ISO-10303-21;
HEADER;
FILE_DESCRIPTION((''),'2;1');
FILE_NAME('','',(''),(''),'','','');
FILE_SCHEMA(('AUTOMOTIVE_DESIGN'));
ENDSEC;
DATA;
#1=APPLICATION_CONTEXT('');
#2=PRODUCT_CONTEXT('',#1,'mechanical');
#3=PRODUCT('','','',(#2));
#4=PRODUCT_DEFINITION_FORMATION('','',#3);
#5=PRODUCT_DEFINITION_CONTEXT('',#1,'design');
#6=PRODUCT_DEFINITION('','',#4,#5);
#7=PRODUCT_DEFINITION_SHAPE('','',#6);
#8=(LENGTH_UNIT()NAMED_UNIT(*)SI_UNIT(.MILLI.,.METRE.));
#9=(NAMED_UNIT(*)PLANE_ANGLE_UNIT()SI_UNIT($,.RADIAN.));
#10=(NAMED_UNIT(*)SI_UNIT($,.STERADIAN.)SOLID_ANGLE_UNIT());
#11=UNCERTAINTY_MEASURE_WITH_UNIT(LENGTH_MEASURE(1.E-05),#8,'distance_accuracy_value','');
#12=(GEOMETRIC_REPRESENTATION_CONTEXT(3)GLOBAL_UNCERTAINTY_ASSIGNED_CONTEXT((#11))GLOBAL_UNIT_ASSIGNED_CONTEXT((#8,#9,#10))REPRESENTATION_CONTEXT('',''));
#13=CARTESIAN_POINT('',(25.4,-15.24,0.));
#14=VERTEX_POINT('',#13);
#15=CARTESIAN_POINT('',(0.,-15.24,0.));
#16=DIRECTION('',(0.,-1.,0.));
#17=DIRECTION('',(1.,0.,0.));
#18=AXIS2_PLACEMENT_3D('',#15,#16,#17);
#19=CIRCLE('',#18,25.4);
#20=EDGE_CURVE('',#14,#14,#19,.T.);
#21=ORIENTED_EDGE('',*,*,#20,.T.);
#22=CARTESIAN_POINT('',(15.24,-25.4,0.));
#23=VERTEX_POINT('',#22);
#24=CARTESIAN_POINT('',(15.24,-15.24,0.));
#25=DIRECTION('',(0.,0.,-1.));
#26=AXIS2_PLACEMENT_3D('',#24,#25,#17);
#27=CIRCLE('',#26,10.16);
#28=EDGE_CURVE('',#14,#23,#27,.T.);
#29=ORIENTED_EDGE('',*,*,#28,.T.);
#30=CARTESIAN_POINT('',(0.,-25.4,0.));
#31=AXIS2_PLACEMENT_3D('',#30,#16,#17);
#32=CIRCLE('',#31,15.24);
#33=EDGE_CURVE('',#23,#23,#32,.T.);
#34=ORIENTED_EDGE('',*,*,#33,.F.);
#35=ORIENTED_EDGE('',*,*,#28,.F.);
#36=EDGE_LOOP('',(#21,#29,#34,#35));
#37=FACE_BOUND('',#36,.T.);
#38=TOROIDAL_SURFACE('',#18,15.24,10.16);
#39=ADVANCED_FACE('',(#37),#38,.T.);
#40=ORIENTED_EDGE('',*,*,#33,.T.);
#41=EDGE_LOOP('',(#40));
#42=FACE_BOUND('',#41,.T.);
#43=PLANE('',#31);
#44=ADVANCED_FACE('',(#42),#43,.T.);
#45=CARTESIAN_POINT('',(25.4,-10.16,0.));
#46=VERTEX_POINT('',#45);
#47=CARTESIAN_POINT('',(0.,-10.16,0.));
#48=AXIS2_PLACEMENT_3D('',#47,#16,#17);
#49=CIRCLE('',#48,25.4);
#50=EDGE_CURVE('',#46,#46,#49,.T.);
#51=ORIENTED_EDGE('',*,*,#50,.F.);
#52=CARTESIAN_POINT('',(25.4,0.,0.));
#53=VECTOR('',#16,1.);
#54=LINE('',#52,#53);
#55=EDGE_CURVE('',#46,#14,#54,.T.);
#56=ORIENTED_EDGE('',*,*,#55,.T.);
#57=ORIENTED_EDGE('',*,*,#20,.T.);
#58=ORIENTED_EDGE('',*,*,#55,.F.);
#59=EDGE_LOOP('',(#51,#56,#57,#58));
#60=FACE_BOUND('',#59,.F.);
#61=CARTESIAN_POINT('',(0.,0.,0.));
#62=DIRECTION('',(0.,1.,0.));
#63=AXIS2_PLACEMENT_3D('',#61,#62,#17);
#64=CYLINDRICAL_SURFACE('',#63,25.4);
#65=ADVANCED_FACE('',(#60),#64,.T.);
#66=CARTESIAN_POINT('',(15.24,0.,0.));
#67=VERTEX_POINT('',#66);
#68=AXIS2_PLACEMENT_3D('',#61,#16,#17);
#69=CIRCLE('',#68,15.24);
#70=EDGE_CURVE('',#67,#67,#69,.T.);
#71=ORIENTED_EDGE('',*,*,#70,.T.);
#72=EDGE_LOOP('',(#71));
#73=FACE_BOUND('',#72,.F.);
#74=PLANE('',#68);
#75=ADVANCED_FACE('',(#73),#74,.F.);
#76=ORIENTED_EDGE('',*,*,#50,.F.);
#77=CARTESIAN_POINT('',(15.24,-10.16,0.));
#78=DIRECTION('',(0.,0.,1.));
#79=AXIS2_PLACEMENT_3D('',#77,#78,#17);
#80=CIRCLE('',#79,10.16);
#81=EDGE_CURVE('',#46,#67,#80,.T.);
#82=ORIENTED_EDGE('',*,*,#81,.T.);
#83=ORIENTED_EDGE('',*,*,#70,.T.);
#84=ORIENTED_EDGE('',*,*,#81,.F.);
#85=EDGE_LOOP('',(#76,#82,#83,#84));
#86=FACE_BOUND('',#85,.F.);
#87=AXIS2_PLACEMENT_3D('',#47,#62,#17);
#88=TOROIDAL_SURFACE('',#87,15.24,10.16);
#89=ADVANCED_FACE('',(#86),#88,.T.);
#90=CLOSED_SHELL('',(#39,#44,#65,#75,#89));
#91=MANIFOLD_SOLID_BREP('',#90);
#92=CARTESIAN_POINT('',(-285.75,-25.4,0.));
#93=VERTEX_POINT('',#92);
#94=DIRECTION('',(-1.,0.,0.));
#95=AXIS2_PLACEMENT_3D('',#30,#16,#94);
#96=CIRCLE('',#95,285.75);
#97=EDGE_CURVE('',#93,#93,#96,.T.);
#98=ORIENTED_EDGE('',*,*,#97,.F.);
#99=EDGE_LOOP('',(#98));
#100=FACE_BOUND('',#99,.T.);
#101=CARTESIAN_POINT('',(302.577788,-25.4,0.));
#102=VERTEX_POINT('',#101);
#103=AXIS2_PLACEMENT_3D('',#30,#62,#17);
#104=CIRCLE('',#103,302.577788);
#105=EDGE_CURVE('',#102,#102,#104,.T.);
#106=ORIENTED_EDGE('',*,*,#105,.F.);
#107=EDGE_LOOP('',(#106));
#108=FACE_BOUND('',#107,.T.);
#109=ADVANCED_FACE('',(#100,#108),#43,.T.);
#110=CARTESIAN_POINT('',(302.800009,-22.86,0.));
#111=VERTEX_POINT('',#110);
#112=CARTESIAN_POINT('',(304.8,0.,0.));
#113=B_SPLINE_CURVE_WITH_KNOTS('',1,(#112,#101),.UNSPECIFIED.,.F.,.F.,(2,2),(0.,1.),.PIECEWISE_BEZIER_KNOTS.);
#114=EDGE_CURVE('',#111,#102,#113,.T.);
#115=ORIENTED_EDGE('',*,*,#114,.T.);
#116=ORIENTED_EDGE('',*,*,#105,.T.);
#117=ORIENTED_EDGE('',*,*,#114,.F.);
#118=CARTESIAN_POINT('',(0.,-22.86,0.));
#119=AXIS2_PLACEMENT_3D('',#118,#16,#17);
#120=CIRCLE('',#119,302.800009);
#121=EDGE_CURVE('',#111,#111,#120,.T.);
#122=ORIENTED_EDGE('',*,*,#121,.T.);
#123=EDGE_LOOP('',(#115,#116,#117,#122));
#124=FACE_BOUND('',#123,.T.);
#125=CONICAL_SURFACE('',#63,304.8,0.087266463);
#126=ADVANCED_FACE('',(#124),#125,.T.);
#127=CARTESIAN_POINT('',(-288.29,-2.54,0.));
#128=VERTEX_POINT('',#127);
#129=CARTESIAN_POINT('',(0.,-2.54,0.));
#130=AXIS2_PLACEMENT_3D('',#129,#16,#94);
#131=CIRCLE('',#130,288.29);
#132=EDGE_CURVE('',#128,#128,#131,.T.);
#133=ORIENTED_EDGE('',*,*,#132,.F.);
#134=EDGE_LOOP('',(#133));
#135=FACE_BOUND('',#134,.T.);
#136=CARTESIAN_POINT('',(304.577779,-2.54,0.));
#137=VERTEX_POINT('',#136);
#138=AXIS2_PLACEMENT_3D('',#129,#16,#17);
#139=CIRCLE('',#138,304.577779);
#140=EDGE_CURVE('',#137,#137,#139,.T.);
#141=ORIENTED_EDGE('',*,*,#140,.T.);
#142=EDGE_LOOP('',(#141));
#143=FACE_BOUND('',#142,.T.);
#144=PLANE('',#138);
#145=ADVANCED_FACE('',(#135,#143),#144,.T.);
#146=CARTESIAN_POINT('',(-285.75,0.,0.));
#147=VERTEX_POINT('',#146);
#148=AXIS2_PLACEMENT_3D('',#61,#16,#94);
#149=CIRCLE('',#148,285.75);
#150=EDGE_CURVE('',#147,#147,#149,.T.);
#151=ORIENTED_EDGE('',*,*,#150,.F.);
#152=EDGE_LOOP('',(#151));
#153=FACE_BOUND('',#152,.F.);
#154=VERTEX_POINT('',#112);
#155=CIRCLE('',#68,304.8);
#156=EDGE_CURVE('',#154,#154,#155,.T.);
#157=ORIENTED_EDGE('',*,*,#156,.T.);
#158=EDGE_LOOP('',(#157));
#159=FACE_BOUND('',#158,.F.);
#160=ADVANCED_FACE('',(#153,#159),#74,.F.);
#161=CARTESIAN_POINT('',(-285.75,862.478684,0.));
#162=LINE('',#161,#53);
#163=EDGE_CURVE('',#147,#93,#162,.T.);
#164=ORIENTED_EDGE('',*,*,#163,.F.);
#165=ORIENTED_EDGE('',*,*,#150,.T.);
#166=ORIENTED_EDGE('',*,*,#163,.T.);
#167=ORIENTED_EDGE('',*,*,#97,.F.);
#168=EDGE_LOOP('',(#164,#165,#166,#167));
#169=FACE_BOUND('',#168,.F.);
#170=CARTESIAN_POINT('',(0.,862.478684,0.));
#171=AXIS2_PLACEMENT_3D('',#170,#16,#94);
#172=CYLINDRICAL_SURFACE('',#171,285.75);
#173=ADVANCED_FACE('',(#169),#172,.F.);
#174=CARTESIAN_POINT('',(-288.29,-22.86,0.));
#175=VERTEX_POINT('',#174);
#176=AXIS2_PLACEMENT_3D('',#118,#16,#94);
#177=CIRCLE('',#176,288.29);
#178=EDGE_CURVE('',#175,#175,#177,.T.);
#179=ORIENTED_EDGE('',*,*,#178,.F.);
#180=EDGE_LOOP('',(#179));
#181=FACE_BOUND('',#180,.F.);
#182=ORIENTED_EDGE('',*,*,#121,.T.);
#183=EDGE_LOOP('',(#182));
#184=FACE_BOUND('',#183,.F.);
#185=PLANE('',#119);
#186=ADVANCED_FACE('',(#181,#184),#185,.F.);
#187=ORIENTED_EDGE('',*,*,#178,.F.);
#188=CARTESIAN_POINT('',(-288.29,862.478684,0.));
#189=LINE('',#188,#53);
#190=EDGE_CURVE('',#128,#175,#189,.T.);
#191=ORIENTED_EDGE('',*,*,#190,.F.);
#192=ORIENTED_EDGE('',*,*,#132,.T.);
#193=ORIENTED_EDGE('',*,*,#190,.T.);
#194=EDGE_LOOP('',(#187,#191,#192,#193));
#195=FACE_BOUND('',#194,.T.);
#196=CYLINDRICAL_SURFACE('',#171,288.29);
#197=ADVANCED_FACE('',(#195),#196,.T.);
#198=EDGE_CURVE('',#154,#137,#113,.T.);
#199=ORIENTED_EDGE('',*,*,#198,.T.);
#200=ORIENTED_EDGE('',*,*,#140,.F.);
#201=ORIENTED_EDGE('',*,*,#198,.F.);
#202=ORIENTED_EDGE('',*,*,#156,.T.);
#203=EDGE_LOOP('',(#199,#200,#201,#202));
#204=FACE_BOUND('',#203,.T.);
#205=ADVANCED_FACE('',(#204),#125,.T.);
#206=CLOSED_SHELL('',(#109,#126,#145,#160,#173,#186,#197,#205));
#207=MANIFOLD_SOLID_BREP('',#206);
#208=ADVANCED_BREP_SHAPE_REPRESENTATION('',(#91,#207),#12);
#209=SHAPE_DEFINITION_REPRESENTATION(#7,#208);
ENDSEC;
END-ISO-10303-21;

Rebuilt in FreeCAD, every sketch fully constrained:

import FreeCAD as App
import Part
import Sketcher
from FreeCAD import Vector
Q = App.Units.Quantity


def edges_at(feature, points):
    """Names of the edges that pass closest to the given points."""
    edges = feature.Shape.Edges
    near = lambda p: min(range(len(edges)), key=lambda i: edges[i].distToShape(Part.Vertex(*p))[0])
    return sorted({f"Edge{near(p) + 1}" for p in points})


def faces_at(feature, points):
    """Names of the faces that lie closest to the given points."""
    faces = feature.Shape.Faces
    near = lambda p: min(range(len(faces)), key=lambda i: faces[i].distToShape(Part.Vertex(*p))[0])
    return sorted({f"Face{near(p) + 1}" for p in points})

doc = App.newDocument("Part")
body = doc.addObject("PartDesign::Body", "Body")

# Sketch on XZ plane
sketch1 = body.newObject("Sketcher::SketchObject", "Sketch")
sketch1.AttachmentSupport = (doc.getObject("XZ_Plane"), [""])
sketch1.MapMode = "FlatFace"
sketch1.addGeometry(Part.Circle(Vector(0, 0, 0), Vector(0, 0, 1), 304.8), False)
sketch1.addConstraint([
    Sketcher.Constraint("Coincident", 0, 3, -1, 1),
    Sketcher.Constraint("Diameter", 0, Q("24 in")),
])
pad1 = body.newObject("PartDesign::Pad", "Pad")
pad1.Profile = sketch1
pad1.Length = Q("1 in")
pad1.TaperAngle = -5

# Sketch on XZ plane
sketch2 = body.newObject("Sketcher::SketchObject", "Sketch001")
sketch2.AttachmentSupport = (doc.getObject("XZ_Plane"), [""])
sketch2.MapMode = "FlatFace"
sketch2.addGeometry(Part.Circle(Vector(0, 0, 0), Vector(0, 0, 1), 285.75), False)
sketch2.addConstraint([
    Sketcher.Constraint("Coincident", 0, 3, -1, 1),
    Sketcher.Constraint("Diameter", 0, Q("22.5 in")),
])
doc.recompute()
hole = body.newObject("PartDesign::Hole", "Hole")
hole.Profile = sketch2
hole.ThreadType = "None"
hole.Diameter = Q("22.5 in")
hole.DepthType = "ThroughAll"
hole.Reversed = True
doc.recompute()

thickness = body.newObject("PartDesign::Thickness", "Thickness")
thickness.Base = (hole, faces_at(hole, [(-303.689, -12.7, 0)]))
thickness.Value = Q("0.1 in")
thickness.Reversed = True
thickness.Join = "Arc"
body2 = doc.addObject("PartDesign::Body", "Body001")

# Sketch on XZ plane
sketch3 = body2.newObject("Sketcher::SketchObject", "Sketch002")
sketch3.AttachmentSupport = (doc.getObject("XZ_Plane001"), [""])
sketch3.MapMode = "FlatFace"
sketch3.addGeometry(Part.Circle(Vector(0, 0, 0), Vector(0, 0, 1), 25.4), False)
sketch3.addConstraint([
    Sketcher.Constraint("Coincident", 0, 3, -1, 1),
    Sketcher.Constraint("Diameter", 0, Q("2 in")),
])
pad2 = body2.newObject("PartDesign::Pad", "Pad001")
pad2.Profile = sketch3
pad2.Length = Q("1 in")
doc.recompute()

fillet = body2.newObject("PartDesign::Fillet", "Fillet")
fillet.Base = (pad2, edges_at(pad2, [(-25.4, -25.4, 0)]))
fillet.Radius = Q("0.4 in")
doc.recompute()

fillet2 = body2.newObject("PartDesign::Fillet", "Fillet001")
fillet2.Base = (fillet, edges_at(fillet, [(-25.4, 0, 0)]))
fillet2.Radius = Q("0.4 in")

doc.recompute()
